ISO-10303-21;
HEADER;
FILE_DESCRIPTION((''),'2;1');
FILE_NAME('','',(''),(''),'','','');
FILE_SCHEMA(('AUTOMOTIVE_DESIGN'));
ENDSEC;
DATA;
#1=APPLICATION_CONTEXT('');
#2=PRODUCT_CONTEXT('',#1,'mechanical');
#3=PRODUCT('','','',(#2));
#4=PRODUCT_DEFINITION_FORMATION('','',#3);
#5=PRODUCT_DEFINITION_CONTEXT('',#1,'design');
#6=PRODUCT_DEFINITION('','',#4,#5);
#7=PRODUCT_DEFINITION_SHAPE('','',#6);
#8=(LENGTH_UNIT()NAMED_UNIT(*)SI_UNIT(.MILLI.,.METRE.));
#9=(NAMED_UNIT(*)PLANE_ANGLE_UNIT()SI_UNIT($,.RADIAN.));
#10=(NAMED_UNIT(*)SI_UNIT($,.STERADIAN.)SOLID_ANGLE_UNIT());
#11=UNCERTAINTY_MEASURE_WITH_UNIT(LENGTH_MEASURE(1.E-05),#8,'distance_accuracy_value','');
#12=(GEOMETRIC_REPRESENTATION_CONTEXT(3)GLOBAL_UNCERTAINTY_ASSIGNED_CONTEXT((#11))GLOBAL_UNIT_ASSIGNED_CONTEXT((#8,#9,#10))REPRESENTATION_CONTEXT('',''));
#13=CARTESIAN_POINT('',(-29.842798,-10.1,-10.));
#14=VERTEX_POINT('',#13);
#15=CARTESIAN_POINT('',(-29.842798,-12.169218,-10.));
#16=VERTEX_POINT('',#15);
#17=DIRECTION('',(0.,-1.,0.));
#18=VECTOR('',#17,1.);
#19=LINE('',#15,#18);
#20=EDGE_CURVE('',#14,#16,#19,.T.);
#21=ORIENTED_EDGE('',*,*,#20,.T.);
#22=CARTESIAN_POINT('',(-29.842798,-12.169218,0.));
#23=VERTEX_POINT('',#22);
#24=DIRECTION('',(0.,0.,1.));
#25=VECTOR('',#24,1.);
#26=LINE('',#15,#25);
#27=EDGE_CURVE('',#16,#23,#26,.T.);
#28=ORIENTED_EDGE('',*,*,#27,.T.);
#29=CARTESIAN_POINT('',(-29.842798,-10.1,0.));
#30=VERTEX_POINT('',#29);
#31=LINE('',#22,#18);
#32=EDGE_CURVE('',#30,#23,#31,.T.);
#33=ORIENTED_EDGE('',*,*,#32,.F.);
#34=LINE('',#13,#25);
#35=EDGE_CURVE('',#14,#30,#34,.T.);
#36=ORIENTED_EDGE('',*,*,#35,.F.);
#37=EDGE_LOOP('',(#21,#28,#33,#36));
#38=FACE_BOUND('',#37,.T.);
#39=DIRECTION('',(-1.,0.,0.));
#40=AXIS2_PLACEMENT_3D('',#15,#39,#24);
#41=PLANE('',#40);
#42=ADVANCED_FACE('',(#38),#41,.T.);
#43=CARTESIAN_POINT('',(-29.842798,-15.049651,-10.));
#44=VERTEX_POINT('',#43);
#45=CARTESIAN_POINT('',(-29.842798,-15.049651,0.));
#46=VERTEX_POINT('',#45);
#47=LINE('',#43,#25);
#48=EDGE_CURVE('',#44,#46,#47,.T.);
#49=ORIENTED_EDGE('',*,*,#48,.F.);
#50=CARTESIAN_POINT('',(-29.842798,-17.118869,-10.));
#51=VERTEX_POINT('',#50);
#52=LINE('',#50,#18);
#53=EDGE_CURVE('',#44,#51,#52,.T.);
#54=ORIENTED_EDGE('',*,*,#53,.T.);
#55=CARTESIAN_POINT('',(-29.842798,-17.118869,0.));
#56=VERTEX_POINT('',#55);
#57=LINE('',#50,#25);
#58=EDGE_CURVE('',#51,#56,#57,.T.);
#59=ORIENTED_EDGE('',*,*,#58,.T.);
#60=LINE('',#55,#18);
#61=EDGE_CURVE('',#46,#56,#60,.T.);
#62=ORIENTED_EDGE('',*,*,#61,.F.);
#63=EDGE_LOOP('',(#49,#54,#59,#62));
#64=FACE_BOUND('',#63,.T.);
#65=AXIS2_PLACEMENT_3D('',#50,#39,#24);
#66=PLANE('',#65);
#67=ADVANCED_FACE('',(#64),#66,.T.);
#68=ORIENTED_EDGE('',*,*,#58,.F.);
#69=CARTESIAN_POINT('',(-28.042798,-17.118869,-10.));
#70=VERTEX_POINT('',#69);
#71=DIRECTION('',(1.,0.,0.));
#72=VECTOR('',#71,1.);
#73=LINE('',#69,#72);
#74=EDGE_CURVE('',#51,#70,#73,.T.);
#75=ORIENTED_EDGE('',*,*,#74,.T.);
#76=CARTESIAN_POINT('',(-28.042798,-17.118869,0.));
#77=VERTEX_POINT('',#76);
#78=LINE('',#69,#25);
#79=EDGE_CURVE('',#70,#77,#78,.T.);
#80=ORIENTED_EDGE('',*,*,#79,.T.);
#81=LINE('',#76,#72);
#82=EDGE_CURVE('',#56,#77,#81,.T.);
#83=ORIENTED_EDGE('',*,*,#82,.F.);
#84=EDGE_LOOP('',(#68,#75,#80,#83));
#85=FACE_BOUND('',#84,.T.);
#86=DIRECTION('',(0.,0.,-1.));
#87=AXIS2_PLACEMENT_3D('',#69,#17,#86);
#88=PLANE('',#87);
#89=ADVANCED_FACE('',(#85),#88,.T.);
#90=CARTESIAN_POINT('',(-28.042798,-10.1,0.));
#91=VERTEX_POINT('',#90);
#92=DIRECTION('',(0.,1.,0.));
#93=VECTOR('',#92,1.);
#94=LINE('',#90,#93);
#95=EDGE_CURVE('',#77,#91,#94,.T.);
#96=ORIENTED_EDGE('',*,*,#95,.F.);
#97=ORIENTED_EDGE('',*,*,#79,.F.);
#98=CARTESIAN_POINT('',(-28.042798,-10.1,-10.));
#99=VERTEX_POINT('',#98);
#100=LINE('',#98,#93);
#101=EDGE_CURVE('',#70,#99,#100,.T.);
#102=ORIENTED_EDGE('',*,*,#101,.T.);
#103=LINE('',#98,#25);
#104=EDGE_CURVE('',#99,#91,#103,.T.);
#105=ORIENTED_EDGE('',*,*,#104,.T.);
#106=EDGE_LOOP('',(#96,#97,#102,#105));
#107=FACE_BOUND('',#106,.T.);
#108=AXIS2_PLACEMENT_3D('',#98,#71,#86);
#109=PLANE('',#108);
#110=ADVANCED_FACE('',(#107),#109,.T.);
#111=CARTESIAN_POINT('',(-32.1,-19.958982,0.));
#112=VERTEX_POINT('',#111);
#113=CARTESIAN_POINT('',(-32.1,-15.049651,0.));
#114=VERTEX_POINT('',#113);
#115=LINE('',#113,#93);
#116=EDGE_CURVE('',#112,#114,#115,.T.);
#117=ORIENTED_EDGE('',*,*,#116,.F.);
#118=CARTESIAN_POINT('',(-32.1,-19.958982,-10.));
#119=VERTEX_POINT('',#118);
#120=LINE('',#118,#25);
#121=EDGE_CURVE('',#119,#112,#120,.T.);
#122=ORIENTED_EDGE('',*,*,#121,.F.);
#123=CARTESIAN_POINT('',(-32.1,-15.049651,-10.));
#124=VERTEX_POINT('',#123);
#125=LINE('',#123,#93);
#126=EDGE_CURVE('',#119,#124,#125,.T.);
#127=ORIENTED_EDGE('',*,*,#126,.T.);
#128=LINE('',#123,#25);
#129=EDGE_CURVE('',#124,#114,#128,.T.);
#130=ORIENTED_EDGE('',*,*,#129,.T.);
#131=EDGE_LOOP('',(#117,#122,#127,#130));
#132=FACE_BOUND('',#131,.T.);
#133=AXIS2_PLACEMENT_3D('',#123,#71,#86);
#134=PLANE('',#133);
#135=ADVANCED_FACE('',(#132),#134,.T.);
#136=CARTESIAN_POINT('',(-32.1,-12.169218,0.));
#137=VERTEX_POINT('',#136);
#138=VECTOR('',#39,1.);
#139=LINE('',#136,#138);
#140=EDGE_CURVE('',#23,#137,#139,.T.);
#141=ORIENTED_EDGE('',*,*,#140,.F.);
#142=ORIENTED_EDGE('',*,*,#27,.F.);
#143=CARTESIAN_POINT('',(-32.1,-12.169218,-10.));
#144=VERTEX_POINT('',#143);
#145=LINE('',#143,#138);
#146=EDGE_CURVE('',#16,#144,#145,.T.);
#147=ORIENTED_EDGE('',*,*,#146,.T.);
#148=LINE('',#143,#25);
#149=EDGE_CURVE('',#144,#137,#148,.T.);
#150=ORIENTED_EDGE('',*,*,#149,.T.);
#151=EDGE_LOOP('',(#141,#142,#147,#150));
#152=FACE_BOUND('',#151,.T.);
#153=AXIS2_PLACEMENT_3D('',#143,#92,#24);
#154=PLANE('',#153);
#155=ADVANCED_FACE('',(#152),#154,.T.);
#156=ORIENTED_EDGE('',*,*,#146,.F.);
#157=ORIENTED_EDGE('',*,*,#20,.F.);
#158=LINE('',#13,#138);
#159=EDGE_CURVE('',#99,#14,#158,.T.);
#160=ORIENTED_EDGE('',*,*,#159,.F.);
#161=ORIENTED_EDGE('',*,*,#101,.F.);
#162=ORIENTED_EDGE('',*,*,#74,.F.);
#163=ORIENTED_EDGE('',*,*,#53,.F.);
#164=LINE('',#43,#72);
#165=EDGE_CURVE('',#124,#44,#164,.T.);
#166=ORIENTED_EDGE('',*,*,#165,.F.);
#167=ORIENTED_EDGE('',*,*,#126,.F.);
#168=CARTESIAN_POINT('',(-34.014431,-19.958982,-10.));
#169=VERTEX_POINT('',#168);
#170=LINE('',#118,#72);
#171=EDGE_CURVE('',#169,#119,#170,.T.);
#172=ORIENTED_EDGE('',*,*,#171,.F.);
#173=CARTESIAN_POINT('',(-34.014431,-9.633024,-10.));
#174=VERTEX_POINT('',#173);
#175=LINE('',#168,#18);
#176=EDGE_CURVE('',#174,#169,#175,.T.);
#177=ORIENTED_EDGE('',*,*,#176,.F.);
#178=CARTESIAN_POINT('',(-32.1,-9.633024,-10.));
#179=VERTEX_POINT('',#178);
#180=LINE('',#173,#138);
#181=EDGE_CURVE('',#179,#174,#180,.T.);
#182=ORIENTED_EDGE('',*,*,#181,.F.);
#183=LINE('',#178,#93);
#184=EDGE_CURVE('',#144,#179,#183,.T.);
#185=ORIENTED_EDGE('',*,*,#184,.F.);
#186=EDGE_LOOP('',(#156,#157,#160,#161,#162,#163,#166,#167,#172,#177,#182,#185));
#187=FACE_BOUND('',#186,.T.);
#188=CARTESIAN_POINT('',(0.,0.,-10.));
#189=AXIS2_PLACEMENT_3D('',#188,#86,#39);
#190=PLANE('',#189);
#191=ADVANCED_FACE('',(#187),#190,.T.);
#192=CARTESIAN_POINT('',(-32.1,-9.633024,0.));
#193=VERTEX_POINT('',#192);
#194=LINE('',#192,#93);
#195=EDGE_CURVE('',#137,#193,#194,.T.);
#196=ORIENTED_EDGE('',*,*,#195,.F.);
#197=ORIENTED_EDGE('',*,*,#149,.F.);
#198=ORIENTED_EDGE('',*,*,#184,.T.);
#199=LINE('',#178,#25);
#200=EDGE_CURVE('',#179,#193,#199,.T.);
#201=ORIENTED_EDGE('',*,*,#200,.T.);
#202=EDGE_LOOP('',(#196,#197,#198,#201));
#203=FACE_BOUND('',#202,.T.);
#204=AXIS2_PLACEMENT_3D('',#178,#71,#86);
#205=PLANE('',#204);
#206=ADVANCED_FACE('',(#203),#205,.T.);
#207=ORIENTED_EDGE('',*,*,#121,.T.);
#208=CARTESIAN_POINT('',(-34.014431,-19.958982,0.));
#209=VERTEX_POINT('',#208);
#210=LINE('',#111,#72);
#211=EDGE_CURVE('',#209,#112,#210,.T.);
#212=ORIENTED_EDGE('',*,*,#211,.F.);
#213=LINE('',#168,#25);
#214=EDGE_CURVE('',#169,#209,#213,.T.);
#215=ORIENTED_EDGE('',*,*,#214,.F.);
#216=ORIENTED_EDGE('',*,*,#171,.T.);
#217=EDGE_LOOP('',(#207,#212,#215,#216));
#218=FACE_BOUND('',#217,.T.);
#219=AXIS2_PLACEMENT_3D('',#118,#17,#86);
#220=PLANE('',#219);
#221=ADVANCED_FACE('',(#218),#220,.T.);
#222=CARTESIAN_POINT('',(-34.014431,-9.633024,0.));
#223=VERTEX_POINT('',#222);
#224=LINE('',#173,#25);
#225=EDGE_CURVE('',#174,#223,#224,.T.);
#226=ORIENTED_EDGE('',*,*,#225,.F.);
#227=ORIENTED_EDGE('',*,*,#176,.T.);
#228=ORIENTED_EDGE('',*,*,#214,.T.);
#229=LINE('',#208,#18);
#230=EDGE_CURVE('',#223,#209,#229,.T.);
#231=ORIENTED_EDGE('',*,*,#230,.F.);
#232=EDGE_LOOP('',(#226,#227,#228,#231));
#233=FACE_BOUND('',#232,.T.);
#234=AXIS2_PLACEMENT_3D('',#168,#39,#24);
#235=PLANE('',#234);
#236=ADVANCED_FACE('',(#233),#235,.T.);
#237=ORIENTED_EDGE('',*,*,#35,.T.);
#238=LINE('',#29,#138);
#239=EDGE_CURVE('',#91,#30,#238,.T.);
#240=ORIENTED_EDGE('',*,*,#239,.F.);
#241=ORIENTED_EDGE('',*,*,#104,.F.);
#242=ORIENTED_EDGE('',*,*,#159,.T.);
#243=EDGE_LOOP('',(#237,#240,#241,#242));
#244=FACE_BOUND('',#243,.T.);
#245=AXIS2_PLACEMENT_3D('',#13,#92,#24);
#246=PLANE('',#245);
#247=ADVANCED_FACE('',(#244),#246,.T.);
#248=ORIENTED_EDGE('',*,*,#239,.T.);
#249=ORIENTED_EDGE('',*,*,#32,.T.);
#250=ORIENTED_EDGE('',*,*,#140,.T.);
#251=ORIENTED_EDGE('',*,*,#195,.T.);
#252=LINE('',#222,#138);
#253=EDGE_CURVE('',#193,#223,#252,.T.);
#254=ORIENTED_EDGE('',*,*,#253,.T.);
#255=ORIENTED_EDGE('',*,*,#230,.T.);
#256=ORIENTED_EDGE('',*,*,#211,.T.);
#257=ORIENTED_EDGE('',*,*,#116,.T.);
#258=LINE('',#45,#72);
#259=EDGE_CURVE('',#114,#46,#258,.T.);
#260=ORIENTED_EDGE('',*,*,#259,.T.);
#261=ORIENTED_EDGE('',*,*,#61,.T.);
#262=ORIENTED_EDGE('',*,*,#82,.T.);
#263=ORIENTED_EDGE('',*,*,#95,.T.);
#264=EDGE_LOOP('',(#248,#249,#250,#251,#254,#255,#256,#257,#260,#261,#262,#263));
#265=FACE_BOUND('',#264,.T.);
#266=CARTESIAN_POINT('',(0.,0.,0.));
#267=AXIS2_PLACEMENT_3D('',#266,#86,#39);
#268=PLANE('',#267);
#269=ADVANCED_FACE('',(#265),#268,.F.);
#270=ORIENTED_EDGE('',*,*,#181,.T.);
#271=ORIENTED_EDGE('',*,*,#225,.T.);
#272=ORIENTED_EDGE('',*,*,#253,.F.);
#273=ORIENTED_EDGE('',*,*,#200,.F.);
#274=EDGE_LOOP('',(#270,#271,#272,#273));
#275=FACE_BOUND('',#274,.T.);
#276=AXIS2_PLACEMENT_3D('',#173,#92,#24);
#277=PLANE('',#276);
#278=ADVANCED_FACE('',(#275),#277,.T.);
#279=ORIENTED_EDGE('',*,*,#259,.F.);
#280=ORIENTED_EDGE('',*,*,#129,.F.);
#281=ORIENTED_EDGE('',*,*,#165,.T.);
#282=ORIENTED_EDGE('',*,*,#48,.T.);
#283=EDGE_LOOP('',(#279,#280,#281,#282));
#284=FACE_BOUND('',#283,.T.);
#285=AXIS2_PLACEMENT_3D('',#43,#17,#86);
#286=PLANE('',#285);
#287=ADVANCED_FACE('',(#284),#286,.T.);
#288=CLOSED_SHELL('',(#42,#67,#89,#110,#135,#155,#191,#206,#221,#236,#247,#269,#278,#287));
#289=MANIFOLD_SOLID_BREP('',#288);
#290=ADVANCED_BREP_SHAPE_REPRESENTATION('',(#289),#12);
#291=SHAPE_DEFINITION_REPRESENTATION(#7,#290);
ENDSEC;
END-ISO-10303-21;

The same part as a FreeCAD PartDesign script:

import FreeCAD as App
import Part
import Sketcher

V = App.Vector
Q = App.Units.Quantity


def add_polygon(sketch, points):
    """Adds a closed chain of lines whose ends are joined by coincident constraints."""
    first, n = sketch.GeometryCount, len(points)
    for a, b in zip(points, points[1:] + points[:1]):
        sketch.addGeometry(Part.LineSegment(App.Vector(*a, 0), App.Vector(*b, 0)), False)
    for i in range(n):
        sketch.addConstraint(Sketcher.Constraint("Coincident", first + i, 2, first + (i + 1) % n, 1))

doc = App.newDocument("Part")
body = doc.addObject("PartDesign::Body", "Body")

sketch1 = body.newObject("Sketcher::SketchObject", "Sketch")
sketch1.AttachmentSupport = (doc.getObject("XY_Plane"), [""])
sketch1.MapMode = "FlatFace"
add_polygon(sketch1, [(-32.1, -12.2), (-32.1, -9.6), (-34, -9.6), (-34, -20), (-32.1, -20), (-32.1, -15), (-29.8, -15), (-29.8, -17.1), (-28, -17.1), (-28, -10.1), (-29.8, -10.1), (-29.8, -12.2)])
sketch1.addConstraint([
    Sketcher.Constraint("Vertical", 0),
    Sketcher.Constraint("Horizontal", 1),
    Sketcher.Constraint("Vertical", 2),
    Sketcher.Constraint("Horizontal", 3),
    Sketcher.Constraint("Vertical", 4),
    Sketcher.Constraint("Horizontal", 5),
    Sketcher.Constraint("Vertical", 6),
    Sketcher.Constraint("Horizontal", 7),
    Sketcher.Constraint("Vertical", 8),
    Sketcher.Constraint("Horizontal", 9),
    Sketcher.Constraint("Vertical", 10),
    Sketcher.Constraint("Horizontal", 11),
    Sketcher.Constraint("Vertical", 0, 2, 3, 2),
    Sketcher.Constraint("Vertical", 6, 2, 9, 2),
    Sketcher.Constraint("Equal", 6, 10),
    Sketcher.Constraint("DistanceX", 7, 1, 7, 2, Q("1.8 mm")),
    Sketcher.Constraint("DistanceX", 0, 2, -1, 1, Q("32.1 mm")),
    Sketcher.Constraint("DistanceY", 8, 2, -1, 1, Q("10.1 mm")),
    Sketcher.Constraint("DistanceX", 1, 2, 1, 1, Q("1.914431 mm")),
    Sketcher.Constraint("DistanceY", 2, 2, 2, 1, Q("10.325958 mm")),
    Sketcher.Constraint("DistanceY", 4, 1, 4, 2, Q("4.909331 mm")),
    Sketcher.Constraint("DistanceY", 8, 1, 8, 2, Q("7.018869 mm")),
    Sketcher.Constraint("DistanceX", 5, 1, 5, 2, Q("2.257202 mm")),
    Sketcher.Constraint("DistanceY", 0, 1, 0, 2, Q("2.536194 mm")),
])
pad1 = body.newObject("PartDesign::Pad", "Pad")
pad1.Profile = sketch1
pad1.Length = 10
pad1.Reversed = True

doc.recompute()
